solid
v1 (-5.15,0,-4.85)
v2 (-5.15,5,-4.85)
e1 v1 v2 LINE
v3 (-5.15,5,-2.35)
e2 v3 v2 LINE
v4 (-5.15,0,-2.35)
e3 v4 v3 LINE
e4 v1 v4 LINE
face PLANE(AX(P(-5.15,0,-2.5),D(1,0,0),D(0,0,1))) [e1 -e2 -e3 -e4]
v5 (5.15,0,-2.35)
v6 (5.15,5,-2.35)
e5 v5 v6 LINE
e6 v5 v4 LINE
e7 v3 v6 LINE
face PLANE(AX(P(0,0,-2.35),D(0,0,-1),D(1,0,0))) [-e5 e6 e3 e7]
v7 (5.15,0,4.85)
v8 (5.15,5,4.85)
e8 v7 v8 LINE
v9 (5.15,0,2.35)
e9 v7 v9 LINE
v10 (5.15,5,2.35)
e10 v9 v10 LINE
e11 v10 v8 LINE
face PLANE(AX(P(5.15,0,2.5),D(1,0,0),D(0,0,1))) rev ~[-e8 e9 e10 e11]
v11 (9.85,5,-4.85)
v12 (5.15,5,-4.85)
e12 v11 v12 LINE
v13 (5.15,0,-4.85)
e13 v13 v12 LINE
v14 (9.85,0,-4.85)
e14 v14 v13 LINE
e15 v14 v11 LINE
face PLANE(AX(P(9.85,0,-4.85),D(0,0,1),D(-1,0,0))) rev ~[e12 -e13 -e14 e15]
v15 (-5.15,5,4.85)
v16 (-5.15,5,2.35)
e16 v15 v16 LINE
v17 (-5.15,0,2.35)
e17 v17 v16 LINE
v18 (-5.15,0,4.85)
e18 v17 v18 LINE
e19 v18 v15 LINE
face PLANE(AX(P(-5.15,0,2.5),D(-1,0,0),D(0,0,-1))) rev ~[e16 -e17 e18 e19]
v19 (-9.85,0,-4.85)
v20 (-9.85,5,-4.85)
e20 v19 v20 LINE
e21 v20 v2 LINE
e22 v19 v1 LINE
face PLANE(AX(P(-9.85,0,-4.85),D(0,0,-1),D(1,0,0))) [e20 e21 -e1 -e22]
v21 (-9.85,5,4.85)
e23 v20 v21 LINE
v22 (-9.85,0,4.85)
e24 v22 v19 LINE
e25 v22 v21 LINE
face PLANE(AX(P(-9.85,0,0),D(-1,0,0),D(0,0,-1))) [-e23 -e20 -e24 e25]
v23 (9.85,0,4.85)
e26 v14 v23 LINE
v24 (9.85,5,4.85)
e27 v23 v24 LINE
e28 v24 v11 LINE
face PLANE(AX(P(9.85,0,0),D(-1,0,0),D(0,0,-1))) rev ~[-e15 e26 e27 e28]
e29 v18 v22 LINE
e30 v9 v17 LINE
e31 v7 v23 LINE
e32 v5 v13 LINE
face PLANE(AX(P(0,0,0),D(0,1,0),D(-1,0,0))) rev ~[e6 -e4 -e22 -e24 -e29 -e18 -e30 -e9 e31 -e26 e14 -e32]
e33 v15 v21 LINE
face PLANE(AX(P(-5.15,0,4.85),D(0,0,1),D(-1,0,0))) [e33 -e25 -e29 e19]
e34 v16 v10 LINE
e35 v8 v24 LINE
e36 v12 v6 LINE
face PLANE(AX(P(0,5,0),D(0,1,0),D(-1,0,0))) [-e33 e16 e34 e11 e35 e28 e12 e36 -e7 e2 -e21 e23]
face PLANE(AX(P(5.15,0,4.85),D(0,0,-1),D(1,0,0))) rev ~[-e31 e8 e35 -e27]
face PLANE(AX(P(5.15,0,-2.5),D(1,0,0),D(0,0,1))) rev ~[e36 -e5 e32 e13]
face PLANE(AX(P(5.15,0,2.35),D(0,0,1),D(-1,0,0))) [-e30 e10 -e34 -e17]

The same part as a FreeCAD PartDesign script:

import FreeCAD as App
import Part
import Sketcher

V = App.Vector


def add_polygon(sketch, points):
    """Adds a closed chain of lines whose ends are joined by coincident constraints."""
    first, n = sketch.GeometryCount, len(points)
    for a, b in zip(points, points[1:] + points[:1]):
        sketch.addGeometry(Part.LineSegment(App.Vector(*a, 0), App.Vector(*b, 0)), False)
    for i in range(n):
        sketch.addConstraint(Sketcher.Constraint("Coincident", first + i, 2, first + (i + 1) % n, 1))

doc = App.newDocument("Part")
body = doc.addObject("PartDesign::Body", "Body")

sketch1 = doc.addObject("Sketcher::SketchObject", "Sketch")
body.addObject(sketch1)
sketch1.AttachmentSupport = (doc.XZ_Plane, [""])
sketch1.MapMode = "FlatFace"
add_polygon(sketch1, [(-5.2, -2.4), (-5.2, -4.8), (-9.8, -4.8), (-9.8, 4.8), (-5.2, 4.8), (-5.2, 2.4), (5.2, 2.4), (5.2, 4.8), (9.8, 4.8), (9.8, -4.8), (5.2, -4.8), (5.2, -2.4)])
sketch1.addConstraint([
    Sketcher.Constraint("Vertical", 0),
    Sketcher.Constraint("Horizontal", 1),
    Sketcher.Constraint("Vertical", 2),
    Sketcher.Constraint("Horizontal", 3),
    Sketcher.Constraint("Vertical", 4),
    Sketcher.Constraint("Horizontal", 5),
    Sketcher.Constraint("Vertical", 6),
    Sketcher.Constraint("Horizontal", 7),
    Sketcher.Constraint("Vertical", 8),
    Sketcher.Constraint("Horizontal", 9),
    Sketcher.Constraint("Vertical", 10),
    Sketcher.Constraint("Horizontal", 11),
    Sketcher.Constraint("Symmetric", 0, 2, 6, 2, -1, 1),
    Sketcher.Constraint("Symmetric", 2, 2, 8, 2, -1, 1),
    Sketcher.Constraint("Symmetric", 4, 2, 10, 2, -1, 1),
    Sketcher.Constraint("Symmetric", 3, 2, 6, 2, -2),
    Sketcher.Constraint("DistanceX", 1, 2, 1, 1, 4.7),
    Sketcher.Constraint("DistanceX", 5, 1, 5, 2, 10.3),
    Sketcher.Constraint("DistanceY", 0, 2, 0, 1, 2.5),
    Sketcher.Constraint("DistanceY", 2, 1, 2, 2, 9.7),
])
pad1 = doc.addObject("PartDesign::Pad", "Pad")
body.addObject(pad1)
pad1.Profile = sketch1
pad1.Length = 5
pad1.Reversed = True

doc.recompute()
